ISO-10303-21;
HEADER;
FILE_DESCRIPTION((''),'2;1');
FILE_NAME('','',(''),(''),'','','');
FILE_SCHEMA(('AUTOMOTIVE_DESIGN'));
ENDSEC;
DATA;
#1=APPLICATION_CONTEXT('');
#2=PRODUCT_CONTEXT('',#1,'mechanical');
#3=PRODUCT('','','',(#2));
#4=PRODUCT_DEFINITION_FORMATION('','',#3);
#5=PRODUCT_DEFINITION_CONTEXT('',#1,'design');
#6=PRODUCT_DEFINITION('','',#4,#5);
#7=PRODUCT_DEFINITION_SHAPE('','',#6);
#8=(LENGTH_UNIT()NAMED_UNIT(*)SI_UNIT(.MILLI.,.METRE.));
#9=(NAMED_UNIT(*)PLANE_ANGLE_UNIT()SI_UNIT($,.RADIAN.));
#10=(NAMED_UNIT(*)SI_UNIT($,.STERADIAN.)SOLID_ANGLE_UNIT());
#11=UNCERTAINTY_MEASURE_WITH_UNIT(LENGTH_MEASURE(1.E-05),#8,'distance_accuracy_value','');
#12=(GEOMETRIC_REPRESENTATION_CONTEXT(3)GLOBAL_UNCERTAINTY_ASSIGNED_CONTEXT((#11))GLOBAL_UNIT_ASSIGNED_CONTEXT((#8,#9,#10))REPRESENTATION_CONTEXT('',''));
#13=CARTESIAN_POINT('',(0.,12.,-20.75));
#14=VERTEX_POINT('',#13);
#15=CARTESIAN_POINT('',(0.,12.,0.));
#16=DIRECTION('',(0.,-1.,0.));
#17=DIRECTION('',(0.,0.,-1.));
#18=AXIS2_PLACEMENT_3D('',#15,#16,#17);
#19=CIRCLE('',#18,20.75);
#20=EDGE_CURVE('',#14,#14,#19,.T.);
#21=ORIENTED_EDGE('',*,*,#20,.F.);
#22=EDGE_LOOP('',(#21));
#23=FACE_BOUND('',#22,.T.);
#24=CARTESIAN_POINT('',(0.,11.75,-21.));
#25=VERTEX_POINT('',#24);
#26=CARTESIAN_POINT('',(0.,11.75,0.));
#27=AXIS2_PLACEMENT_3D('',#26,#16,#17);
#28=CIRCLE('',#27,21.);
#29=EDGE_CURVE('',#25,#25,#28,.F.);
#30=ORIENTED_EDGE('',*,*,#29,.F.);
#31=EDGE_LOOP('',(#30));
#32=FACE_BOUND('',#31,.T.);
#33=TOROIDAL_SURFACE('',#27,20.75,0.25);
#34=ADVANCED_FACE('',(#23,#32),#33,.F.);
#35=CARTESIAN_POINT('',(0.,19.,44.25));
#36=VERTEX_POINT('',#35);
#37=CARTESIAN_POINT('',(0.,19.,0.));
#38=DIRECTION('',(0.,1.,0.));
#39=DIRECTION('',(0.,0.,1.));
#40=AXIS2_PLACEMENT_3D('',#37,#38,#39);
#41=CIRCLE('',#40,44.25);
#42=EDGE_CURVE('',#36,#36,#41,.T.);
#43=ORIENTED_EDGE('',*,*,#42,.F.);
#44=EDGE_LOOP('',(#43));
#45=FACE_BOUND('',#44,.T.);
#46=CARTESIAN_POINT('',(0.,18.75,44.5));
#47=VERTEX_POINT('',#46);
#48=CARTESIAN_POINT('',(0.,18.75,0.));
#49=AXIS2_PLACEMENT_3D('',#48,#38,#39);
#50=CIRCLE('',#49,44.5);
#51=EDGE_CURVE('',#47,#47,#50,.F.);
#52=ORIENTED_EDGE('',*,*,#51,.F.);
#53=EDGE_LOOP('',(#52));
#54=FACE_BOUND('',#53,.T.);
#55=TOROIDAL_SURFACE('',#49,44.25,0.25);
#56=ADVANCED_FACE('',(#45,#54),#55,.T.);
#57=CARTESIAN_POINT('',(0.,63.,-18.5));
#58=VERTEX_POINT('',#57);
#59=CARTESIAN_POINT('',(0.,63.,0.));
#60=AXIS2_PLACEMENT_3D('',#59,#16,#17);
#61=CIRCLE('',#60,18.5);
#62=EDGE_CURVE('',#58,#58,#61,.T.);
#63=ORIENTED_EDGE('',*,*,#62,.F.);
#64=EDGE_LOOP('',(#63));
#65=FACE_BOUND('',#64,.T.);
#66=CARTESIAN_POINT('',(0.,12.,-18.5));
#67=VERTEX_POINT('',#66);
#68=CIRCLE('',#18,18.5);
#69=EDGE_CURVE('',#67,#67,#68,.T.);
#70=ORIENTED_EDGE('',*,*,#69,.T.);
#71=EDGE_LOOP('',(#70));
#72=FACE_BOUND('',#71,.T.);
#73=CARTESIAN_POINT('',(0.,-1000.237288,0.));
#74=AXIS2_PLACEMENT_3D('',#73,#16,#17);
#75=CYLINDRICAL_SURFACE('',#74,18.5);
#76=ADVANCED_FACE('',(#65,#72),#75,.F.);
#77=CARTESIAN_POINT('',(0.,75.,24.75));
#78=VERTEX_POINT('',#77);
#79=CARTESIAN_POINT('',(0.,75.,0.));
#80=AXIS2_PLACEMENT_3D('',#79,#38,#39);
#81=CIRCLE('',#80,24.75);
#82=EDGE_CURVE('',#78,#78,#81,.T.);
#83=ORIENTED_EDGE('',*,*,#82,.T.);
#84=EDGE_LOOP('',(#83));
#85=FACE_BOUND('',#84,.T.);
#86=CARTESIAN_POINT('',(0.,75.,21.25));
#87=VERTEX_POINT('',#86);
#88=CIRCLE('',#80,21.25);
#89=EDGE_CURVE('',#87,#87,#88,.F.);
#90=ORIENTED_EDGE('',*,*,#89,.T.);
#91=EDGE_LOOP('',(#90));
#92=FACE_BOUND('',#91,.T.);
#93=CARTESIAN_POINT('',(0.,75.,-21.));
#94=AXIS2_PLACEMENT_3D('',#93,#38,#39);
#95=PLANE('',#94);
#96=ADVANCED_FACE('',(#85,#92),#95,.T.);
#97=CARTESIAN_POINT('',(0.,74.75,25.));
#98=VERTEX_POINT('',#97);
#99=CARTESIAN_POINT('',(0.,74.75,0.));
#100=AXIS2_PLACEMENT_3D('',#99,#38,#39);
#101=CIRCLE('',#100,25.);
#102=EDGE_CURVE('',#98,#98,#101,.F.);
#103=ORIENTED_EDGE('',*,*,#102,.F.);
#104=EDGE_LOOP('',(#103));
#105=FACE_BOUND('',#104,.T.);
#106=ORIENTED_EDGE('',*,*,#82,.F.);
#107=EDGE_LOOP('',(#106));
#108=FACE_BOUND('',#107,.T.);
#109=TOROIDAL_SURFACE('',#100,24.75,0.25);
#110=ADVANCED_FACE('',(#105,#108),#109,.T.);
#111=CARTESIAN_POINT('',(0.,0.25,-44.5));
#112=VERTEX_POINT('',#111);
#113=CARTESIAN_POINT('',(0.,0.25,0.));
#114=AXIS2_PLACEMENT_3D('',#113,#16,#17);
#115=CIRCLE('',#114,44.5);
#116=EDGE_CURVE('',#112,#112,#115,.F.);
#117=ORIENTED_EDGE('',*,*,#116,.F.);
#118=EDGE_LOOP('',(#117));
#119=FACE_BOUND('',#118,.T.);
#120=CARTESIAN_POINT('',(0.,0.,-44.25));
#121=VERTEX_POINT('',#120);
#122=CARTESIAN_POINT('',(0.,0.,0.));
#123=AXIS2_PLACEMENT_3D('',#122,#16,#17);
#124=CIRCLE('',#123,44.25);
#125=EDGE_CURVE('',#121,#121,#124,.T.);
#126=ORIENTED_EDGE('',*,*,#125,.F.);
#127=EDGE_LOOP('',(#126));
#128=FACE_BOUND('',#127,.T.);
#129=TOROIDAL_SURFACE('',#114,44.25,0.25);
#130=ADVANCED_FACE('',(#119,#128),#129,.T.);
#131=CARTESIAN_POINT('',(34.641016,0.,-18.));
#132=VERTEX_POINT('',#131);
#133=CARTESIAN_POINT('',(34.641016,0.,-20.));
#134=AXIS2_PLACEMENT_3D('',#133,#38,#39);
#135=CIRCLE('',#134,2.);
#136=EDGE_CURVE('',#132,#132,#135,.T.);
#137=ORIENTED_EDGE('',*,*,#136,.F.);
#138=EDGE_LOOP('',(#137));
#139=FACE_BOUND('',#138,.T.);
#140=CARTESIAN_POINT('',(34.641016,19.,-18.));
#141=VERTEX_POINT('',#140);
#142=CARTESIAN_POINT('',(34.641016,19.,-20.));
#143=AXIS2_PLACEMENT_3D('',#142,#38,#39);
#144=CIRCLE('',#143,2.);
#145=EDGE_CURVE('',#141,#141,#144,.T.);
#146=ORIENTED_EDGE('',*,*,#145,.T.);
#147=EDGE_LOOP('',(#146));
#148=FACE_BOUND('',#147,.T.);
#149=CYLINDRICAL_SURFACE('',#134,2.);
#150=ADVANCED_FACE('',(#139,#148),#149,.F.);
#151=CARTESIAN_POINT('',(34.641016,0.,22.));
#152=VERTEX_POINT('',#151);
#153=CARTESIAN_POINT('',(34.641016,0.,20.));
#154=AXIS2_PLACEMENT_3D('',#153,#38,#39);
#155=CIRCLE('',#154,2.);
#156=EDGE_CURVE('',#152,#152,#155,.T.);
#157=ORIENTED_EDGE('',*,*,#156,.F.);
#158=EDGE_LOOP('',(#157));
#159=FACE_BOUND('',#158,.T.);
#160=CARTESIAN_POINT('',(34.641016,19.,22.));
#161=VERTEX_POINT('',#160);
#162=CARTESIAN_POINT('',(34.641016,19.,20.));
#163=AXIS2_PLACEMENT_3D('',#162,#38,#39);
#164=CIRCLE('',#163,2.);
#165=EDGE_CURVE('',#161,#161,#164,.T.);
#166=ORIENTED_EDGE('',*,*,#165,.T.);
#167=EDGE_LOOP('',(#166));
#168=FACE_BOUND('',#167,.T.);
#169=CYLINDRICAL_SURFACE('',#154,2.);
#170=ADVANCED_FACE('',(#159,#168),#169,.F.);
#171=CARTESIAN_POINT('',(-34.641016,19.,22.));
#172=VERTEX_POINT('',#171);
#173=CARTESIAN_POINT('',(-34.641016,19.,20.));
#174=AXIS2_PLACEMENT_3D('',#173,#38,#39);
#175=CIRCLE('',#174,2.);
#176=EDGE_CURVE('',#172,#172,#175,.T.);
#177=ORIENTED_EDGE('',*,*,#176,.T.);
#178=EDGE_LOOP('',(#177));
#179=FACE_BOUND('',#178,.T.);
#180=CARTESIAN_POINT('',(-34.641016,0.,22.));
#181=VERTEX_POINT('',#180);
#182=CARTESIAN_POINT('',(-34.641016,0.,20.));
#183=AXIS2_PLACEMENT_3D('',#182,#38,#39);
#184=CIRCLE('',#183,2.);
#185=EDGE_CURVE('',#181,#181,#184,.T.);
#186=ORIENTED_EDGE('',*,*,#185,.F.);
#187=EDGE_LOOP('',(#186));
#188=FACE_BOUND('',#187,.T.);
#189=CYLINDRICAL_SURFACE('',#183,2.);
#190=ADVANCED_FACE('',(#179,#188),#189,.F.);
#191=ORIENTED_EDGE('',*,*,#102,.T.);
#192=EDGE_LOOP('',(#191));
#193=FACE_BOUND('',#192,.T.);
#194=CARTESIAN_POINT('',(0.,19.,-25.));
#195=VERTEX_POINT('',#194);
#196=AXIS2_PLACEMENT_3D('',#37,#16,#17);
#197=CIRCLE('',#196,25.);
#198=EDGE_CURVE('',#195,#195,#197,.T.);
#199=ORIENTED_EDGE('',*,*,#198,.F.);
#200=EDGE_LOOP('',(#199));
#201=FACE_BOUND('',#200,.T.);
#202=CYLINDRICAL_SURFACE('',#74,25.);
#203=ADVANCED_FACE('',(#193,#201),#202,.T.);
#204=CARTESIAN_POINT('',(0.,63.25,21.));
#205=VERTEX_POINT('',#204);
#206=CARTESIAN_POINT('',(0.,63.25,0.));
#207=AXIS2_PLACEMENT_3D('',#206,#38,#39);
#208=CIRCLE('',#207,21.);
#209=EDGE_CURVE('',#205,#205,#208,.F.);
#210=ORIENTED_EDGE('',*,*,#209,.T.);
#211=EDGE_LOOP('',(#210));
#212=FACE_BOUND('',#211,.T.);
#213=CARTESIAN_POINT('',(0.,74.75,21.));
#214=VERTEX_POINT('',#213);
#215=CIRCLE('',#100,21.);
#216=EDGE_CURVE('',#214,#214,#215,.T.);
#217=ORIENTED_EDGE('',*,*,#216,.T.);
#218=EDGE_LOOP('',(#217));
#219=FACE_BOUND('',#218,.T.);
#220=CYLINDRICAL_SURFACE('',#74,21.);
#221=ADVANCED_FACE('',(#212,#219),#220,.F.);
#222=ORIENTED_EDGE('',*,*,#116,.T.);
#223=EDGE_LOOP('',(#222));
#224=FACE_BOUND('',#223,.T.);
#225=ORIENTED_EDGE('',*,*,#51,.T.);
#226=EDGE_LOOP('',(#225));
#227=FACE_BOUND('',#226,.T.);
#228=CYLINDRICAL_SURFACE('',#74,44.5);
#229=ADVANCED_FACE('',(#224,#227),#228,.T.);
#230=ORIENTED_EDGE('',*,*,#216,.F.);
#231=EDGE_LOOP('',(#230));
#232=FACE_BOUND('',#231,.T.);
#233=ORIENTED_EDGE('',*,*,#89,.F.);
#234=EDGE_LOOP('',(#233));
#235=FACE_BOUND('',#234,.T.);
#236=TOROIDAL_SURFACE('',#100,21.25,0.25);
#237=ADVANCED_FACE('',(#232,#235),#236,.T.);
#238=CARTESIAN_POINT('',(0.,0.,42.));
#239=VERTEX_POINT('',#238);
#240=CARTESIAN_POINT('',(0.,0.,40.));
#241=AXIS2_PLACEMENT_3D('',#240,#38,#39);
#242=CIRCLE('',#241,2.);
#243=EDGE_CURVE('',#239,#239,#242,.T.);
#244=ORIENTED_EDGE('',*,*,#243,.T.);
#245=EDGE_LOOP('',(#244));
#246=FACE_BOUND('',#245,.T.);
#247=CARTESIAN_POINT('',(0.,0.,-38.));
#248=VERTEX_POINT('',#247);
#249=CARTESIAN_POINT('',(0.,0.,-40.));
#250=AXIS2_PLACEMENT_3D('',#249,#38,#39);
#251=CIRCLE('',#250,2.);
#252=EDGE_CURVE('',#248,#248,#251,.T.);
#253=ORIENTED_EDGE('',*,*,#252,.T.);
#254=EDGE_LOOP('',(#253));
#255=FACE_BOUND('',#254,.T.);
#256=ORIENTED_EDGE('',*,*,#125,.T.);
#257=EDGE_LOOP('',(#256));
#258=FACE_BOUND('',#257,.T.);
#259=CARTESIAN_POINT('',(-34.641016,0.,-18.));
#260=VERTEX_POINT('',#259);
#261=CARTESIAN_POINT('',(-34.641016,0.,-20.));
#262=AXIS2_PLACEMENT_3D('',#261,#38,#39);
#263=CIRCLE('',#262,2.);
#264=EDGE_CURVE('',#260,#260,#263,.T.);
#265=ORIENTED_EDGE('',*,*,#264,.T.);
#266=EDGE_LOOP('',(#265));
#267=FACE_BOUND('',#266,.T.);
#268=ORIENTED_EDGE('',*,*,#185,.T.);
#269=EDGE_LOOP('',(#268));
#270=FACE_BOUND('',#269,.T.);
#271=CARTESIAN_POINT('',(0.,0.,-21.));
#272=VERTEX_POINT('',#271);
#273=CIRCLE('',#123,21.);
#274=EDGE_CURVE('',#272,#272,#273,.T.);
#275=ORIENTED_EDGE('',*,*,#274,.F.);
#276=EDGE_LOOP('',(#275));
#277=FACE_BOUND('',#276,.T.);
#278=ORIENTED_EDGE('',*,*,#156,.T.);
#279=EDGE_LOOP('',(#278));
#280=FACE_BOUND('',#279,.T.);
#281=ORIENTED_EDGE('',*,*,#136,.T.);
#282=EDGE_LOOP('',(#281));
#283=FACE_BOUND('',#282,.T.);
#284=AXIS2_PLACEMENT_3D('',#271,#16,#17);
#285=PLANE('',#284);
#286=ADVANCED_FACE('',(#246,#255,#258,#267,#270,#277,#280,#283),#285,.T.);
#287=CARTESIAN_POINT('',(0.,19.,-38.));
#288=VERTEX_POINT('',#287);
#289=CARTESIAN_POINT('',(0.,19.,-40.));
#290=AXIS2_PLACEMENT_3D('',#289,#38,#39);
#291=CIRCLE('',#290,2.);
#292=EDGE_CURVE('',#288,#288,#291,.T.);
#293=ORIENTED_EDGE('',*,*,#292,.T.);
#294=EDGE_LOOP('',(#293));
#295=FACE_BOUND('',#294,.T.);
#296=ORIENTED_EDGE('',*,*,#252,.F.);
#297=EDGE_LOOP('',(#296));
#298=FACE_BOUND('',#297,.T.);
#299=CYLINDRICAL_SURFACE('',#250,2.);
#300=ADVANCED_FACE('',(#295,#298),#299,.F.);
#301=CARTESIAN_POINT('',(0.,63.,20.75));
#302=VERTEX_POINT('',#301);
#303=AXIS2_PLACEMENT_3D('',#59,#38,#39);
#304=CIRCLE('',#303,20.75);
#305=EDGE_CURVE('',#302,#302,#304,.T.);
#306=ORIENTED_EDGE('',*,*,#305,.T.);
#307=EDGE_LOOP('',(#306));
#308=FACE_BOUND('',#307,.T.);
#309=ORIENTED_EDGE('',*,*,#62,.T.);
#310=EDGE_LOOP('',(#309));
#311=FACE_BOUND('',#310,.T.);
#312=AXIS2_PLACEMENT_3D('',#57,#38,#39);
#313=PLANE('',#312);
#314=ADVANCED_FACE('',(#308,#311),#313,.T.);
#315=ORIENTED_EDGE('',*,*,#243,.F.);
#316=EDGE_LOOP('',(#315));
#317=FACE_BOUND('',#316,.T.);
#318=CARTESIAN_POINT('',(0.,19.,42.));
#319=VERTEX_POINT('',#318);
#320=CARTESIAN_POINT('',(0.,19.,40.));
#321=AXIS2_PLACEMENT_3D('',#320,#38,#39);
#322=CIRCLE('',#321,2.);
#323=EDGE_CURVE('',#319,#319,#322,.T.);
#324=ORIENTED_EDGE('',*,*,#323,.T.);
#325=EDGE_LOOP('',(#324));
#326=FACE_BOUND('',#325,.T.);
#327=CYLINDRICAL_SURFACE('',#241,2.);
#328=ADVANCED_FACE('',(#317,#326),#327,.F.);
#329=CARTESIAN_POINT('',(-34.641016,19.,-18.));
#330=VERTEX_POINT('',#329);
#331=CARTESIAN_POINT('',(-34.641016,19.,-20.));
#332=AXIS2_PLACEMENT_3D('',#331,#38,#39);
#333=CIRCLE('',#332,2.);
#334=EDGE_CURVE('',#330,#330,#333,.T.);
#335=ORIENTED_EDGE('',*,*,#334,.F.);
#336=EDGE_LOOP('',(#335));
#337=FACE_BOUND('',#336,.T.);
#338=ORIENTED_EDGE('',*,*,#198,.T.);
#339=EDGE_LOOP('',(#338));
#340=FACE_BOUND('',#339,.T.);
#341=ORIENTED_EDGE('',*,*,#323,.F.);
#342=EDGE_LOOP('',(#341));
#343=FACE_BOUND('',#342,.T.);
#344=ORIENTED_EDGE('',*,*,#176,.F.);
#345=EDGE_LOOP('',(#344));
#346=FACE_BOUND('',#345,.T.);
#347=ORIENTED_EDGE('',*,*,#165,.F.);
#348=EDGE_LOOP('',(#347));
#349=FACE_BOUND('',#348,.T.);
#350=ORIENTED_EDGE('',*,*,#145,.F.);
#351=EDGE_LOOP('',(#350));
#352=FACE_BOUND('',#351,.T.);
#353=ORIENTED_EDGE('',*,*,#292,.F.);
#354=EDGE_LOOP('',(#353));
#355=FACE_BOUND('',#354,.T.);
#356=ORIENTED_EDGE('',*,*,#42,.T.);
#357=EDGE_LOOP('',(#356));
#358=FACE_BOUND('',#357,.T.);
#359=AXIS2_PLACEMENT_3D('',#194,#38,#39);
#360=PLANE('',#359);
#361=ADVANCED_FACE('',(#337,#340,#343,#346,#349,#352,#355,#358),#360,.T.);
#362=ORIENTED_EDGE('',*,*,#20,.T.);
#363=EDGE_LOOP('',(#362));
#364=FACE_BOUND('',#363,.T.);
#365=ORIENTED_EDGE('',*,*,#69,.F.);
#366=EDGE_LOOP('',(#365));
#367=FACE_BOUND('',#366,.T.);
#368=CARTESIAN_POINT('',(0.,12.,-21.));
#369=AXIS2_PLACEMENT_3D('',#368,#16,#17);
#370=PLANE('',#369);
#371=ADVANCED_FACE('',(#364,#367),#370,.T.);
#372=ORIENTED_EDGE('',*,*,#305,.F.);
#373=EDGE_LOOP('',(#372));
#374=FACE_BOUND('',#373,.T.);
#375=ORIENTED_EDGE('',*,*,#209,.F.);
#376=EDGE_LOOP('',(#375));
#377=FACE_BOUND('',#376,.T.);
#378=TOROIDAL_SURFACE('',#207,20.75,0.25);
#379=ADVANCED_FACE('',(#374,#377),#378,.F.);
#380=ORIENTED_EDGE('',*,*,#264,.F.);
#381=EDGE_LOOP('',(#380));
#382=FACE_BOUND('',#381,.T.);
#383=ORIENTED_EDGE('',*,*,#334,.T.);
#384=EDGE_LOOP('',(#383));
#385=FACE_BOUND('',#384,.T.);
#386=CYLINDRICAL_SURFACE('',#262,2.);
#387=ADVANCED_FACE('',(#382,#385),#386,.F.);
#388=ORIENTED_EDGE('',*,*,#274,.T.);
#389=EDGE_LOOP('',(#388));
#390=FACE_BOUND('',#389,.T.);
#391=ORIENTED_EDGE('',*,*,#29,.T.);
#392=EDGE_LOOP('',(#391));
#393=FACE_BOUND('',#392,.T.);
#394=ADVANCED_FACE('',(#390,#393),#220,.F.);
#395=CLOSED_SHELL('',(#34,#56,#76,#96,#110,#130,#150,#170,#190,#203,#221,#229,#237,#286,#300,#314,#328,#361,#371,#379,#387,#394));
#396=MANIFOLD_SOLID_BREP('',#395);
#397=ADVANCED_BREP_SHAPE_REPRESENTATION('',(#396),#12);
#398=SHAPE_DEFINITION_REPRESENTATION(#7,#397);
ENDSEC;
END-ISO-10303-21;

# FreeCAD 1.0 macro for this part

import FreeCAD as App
import Part
import Sketcher


def edges_at(feature, points):
    """Names of the edges that pass closest to the given points."""
    edges = feature.Shape.Edges
    near = lambda p: min(range(len(edges)), key=lambda i: edges[i].distToShape(Part.Vertex(*p))[0])
    return sorted({f"Edge{near(p) + 1}" for p in points})


def add_polygon(sketch, points):
    """Adds a closed chain of lines whose ends are joined by coincident constraints."""
    first, n = sketch.GeometryCount, len(points)
    for a, b in zip(points, points[1:] + points[:1]):
        sketch.addGeometry(Part.LineSegment(App.Vector(*a, 0), App.Vector(*b, 0)), False)
    for i in range(n):
        sketch.addConstraint(Sketcher.Constraint("Coincident", first + i, 2, first + (i + 1) % n, 1))

doc = App.newDocument("Part")
params = doc.addObject("Spreadsheet::Sheet", "Params")
for row, (alias, value) in enumerate([
    ("sketch1_width", "12 mm"),
    ("sketch1_width2", "19 mm"),
    ("sketch1_width3", "56 mm"),
    ("sketch1_height", "4 mm"),
    ("sketch1_height2", "23.5 mm"),
    ("revolution_angle", "360 deg"),
    ("sketch2_diameter", "4 mm"),
    ("fillet_radius", "0.25 mm"),
], start=1):
    params.set(f"A{row}", alias)
    params.set(f"B{row}", "=" + value)
    params.setAlias(f"B{row}", alias)

body = doc.addObject("PartDesign::Body", "Body")

sketch1 = doc.addObject("Sketcher::SketchObject", "Sketch")
body.addObject(sketch1)
sketch1.AttachmentSupport = (doc.YZ_Plane, [""])
sketch1.MapMode = "FlatFace"
add_polygon(sketch1, [(12, -21), (0, -21), (0, -44.5), (19, -44.5), (19, -25), (75, -25), (75, -21), (63, -21), (63, -18.5), (12, -18.5)])
sketch1.addConstraint([
    Sketcher.Constraint("Horizontal", 0),
    Sketcher.Constraint("Vertical", 1),
    Sketcher.Constraint("Horizontal", 2),
    Sketcher.Constraint("Vertical", 3),
    Sketcher.Constraint("Horizontal", 4),
    Sketcher.Constraint("Vertical", 5),
    Sketcher.Constraint("Horizontal", 6),
    Sketcher.Constraint("Vertical", 7),
    Sketcher.Constraint("Horizontal", 8),
    Sketcher.Constraint("Vertical", 9),
    Sketcher.Constraint("PointOnObject", 0, 2, -2),
    Sketcher.Constraint("Horizontal", 0, 2, 5, 2),
    Sketcher.Constraint("Equal", 0, 6),
    Sketcher.Constraint("DistanceX", 0, 2, 0, 1, 12.0),
    Sketcher.Constraint("DistanceX", 2, 1, 2, 2, 19.0),
    Sketcher.Constraint("DistanceX", 4, 1, 4, 2, 56.0),
    Sketcher.Constraint("DistanceY", 5, 1, 5, 2, 4.0),
    Sketcher.Constraint("DistanceY", 1, 2, 1, 1, 23.5),
    Sketcher.Constraint("DistanceY", 7, 1, 7, 2, 2.5),
    Sketcher.Constraint("DistanceY", 0, 2, -1, 1, 21.0),
])
sketch1.setExpression("Constraints[23]", "Params.sketch1_width")
sketch1.setExpression("Constraints[24]", "Params.sketch1_width2")
sketch1.setExpression("Constraints[25]", "Params.sketch1_width3")
sketch1.setExpression("Constraints[26]", "Params.sketch1_height")
sketch1.setExpression("Constraints[27]", "Params.sketch1_height2")
revolution = doc.addObject("PartDesign::Revolution", "Revolution")
body.addObject(revolution)
revolution.Profile = sketch1
revolution.ReferenceAxis = (sketch1, ["H_Axis"])
revolution.setExpression("Angle", "Params.revolution_angle")

sketch2 = doc.addObject("Sketcher::SketchObject", "Sketch001")
body.addObject(sketch2)
sketch2.AttachmentSupport = (doc.XZ_Plane, [""])
sketch2.MapMode = "FlatFace"
sketch2.AttachmentOffset = App.Placement(App.Vector(0, 0, -19), App.Rotation())
sketch2.addGeometry([
    Part.Circle(App.Vector(0, -40, 0), App.Vector(0, 0, 1), 2),
    Part.Circle(App.Vector(34.641016, -20, 0), App.Vector(0, 0, 1), 2),
    Part.Circle(App.Vector(34.641016, 20, 0), App.Vector(0, 0, 1), 2),
    Part.Circle(App.Vector(0, 40, 0), App.Vector(0, 0, 1), 2),
    Part.Circle(App.Vector(-34.641016, 20, 0), App.Vector(0, 0, 1), 2),
    Part.Circle(App.Vector(-34.641016, -20, 0), App.Vector(0, 0, 1), 2),
], False)
sketch2.addConstraint([
    Sketcher.Constraint("Equal", 0, 1),
    Sketcher.Constraint("Equal", 1, 2),
    Sketcher.Constraint("Equal", 2, 3),
    Sketcher.Constraint("Equal", 3, 4),
    Sketcher.Constraint("Equal", 4, 5),
    Sketcher.Constraint("Symmetric", 0, 3, 3, 3, -1, 1),
    Sketcher.Constraint("Symmetric", 1, 3, 4, 3, -1, 1),
    Sketcher.Constraint("Symmetric", 2, 3, 5, 3, -1, 1),
    Sketcher.Constraint("Symmetric", 2, 3, 4, 3, -2),
    Sketcher.Constraint("PointOnObject", 0, 3, -2),
    Sketcher.Constraint("Diameter", 0, 4.0),
    Sketcher.Constraint("DistanceY", 0, 3, -1, 1, 40.0),
    Sketcher.Constraint("DistanceY", 1, 3, -1, 1, 20.0),
    Sketcher.Constraint("DistanceX", -1, 1, 1, 3, 34.641016),
])
sketch2.setExpression("Constraints[10]", "Params.sketch2_diameter")
pocket1 = doc.addObject("PartDesign::Pocket", "Pocket")
body.addObject(pocket1)
pocket1.Profile = sketch2
pocket1.Type = "ThroughAll"
pocket1.Reversed = True
doc.recompute()

fillet = doc.addObject("PartDesign::Fillet", "Fillet")
body.addObject(fillet)
fillet.Base = (pocket1, edges_at(pocket1, [
    (0, 12, 21),
    (0, 0, 44.5),
    (0, 19, 44.5),
    (0, 75, 25),
    (0, 75, 21),
    (0, 63, 21),
]))
fillet.setExpression("Radius", "Params.fillet_radius")

doc.recompute()
